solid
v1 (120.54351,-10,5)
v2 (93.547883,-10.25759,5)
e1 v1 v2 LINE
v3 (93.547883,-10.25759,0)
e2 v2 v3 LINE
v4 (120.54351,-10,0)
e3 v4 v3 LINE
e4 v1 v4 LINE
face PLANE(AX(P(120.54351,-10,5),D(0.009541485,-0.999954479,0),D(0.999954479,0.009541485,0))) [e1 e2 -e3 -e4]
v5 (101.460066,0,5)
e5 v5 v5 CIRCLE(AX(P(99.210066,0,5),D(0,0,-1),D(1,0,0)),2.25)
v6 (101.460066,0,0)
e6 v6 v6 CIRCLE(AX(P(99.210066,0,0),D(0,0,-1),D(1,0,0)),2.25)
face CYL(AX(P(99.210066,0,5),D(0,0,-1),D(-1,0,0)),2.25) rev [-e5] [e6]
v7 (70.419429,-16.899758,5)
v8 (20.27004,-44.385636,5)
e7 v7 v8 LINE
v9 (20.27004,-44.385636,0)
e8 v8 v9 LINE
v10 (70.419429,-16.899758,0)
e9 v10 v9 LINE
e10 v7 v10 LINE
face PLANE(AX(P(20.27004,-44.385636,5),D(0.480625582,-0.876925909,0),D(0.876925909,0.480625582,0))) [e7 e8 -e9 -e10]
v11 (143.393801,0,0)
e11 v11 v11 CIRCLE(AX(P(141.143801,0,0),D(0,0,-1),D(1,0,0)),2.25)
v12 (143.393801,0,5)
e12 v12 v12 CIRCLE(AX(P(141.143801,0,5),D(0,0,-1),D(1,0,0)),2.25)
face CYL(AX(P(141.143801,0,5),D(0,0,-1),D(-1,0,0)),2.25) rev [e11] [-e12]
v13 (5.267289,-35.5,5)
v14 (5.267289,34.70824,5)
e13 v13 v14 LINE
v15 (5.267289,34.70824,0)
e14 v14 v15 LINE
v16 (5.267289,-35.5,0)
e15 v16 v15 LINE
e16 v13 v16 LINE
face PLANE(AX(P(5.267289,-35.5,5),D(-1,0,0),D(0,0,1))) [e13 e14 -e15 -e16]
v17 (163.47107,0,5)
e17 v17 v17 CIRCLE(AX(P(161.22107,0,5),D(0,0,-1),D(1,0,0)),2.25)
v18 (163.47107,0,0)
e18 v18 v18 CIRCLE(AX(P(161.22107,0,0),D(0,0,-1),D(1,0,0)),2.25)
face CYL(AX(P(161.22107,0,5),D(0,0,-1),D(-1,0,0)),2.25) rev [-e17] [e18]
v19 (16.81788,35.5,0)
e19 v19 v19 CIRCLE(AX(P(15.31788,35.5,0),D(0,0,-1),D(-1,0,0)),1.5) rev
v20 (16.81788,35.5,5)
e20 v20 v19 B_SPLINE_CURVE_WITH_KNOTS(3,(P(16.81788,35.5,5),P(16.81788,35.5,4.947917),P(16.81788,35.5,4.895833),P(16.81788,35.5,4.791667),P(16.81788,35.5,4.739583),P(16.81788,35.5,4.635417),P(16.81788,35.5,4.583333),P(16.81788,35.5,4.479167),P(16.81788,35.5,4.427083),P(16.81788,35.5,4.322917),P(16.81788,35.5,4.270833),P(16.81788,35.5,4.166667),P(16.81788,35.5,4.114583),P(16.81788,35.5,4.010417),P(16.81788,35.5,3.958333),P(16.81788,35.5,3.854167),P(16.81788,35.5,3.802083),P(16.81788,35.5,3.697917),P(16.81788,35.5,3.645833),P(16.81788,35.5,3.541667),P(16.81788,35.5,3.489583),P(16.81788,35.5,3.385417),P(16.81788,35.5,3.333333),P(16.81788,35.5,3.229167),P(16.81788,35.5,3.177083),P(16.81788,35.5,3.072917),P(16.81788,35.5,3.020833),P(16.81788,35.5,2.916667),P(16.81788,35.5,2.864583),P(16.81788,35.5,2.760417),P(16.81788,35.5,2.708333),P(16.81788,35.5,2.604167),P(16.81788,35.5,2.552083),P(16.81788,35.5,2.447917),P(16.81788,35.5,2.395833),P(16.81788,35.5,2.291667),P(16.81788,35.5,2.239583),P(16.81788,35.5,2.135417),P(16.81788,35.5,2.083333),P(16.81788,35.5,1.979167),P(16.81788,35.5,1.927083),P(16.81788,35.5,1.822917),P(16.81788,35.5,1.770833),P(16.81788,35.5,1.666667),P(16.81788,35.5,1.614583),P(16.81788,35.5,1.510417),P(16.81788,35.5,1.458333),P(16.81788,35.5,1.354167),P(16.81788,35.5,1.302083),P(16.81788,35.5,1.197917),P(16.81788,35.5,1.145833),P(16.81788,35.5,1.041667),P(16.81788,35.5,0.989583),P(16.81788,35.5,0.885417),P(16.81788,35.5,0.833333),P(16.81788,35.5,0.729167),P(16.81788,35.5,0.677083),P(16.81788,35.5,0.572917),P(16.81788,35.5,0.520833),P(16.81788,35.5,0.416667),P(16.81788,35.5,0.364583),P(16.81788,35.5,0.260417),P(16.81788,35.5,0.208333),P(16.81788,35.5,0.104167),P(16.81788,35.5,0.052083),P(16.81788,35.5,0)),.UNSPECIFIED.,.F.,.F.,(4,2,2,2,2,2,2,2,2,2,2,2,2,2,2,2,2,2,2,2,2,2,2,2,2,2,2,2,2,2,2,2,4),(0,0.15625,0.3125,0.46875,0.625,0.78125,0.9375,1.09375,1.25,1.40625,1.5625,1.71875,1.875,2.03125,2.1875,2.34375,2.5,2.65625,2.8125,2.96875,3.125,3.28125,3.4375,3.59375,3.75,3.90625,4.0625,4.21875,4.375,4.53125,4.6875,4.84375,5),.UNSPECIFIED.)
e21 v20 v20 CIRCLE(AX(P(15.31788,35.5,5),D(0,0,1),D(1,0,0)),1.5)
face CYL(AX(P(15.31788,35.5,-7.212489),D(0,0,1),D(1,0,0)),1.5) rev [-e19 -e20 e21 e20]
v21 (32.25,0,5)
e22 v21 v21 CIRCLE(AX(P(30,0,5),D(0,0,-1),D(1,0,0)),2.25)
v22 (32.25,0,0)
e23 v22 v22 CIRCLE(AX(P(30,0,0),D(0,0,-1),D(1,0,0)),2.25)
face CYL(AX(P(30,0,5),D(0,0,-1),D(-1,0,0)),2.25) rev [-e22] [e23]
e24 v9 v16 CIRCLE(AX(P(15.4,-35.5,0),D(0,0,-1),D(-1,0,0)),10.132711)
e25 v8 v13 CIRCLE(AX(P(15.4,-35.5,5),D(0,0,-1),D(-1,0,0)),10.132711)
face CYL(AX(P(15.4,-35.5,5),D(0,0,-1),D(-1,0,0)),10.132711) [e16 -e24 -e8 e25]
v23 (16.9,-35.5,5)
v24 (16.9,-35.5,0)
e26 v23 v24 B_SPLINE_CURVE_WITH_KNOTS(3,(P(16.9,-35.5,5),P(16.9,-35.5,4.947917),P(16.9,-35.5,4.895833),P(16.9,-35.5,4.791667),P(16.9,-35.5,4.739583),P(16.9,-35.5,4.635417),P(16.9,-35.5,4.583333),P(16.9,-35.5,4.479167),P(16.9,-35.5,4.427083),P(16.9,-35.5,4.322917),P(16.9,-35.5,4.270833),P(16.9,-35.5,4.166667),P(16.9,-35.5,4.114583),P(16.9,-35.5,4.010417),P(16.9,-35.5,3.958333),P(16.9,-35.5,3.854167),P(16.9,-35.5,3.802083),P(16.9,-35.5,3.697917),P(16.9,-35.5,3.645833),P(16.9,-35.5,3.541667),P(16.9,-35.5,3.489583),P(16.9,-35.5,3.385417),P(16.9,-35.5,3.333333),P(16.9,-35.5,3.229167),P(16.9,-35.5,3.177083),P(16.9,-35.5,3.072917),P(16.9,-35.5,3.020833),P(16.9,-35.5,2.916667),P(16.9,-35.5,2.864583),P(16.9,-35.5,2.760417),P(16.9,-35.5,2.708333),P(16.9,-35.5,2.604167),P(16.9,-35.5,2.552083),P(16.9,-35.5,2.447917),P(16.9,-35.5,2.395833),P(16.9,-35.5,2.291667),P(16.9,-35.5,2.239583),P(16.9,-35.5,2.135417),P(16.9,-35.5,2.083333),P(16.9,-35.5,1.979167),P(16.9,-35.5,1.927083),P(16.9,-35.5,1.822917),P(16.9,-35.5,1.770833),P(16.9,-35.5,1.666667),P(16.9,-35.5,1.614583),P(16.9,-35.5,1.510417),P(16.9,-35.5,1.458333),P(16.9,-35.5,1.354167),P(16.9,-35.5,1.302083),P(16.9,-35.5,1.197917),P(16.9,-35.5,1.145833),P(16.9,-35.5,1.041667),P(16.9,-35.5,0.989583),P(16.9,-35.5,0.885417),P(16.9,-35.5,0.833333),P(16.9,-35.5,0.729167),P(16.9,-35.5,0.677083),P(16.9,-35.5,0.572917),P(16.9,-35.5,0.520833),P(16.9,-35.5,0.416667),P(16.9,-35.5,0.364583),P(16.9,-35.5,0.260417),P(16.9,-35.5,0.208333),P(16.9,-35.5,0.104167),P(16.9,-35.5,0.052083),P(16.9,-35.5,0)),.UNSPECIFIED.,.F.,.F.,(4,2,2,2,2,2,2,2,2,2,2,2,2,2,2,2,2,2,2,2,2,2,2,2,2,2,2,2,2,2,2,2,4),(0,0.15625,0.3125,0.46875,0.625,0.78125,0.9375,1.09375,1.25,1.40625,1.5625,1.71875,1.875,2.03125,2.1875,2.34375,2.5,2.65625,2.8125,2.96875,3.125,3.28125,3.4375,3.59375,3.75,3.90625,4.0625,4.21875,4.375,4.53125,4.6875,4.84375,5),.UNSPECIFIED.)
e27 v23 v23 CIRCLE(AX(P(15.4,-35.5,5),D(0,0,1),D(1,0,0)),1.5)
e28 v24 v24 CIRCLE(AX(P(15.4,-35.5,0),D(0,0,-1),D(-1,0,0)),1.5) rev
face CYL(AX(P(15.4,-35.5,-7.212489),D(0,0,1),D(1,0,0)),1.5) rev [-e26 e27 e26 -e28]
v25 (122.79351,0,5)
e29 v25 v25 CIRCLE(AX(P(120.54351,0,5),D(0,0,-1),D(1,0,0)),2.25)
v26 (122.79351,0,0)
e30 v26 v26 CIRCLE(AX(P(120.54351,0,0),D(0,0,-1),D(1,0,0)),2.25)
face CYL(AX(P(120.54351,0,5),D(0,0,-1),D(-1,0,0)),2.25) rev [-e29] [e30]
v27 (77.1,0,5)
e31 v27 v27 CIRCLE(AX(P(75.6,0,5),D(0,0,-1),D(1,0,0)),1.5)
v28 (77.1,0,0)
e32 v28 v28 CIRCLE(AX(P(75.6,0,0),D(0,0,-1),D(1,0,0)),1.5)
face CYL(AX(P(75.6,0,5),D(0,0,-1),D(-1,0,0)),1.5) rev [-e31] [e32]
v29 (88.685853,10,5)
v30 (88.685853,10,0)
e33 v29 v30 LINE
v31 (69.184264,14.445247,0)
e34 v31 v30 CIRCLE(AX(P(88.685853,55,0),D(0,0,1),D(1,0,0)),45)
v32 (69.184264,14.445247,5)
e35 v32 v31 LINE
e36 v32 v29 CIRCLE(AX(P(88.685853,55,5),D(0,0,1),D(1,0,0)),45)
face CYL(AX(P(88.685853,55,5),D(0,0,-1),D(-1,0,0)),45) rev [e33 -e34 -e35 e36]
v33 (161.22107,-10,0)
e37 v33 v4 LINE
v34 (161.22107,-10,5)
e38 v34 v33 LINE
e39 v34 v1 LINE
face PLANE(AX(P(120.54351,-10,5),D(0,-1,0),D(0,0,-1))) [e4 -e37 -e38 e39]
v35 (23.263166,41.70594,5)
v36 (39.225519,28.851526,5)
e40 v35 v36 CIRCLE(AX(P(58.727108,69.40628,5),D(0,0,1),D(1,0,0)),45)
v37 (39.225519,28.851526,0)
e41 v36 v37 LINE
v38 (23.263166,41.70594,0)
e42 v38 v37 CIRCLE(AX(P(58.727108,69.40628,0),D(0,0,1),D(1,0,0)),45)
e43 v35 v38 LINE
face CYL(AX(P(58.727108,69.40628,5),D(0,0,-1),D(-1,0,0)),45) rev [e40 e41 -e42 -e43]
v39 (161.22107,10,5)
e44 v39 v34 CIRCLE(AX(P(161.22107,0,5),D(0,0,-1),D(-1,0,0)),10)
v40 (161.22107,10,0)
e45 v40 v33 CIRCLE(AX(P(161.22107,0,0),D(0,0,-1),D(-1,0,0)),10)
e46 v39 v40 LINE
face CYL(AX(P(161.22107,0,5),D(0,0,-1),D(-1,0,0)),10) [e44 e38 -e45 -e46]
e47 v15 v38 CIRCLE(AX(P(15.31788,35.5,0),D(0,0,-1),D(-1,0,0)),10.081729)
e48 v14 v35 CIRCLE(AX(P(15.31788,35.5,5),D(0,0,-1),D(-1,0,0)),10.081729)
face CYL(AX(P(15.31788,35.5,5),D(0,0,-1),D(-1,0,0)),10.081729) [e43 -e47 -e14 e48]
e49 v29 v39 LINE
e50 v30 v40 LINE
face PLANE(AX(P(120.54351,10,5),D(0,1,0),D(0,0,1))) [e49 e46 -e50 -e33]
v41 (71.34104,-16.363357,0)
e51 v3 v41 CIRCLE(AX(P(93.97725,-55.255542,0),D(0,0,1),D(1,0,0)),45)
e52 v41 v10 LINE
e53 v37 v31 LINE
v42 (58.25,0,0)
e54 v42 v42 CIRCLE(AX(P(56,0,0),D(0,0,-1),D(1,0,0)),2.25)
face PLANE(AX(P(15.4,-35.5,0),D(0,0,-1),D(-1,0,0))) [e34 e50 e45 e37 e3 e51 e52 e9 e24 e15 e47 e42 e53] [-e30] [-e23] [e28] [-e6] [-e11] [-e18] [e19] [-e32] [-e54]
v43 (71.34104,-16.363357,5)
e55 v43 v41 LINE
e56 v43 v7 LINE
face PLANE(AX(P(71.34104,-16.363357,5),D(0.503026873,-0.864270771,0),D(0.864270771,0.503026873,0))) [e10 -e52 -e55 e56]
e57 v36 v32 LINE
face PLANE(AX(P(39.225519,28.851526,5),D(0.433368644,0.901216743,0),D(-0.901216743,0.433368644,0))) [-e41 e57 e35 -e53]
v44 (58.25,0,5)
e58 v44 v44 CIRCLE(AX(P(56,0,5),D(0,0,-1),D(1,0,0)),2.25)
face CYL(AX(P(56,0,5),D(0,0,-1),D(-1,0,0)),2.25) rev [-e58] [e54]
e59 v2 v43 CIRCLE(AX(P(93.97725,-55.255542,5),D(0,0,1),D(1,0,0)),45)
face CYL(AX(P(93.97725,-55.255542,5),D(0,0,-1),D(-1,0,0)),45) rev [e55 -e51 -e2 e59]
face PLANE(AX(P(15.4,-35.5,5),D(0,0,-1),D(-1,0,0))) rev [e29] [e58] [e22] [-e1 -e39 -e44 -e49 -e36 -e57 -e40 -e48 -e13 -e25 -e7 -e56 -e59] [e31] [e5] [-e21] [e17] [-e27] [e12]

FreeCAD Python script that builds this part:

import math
import FreeCAD as App
import Part
import Sketcher

V = App.Vector

doc = App.newDocument("Part")
body = doc.addObject("PartDesign::Body", "Body")

# Sketch on XY plane
sketch1 = doc.addObject("Sketcher::SketchObject", "Sketch")
body.addObject(sketch1)
sketch1.AttachmentSupport = (doc.XY_Plane, [""])
sketch1.MapMode = "FlatFace"
sketch1.addGeometry([
    Part.LineSegment(V(71.34104, -16.363357, 0), V(70.419429, -16.899758, 0)),  # 0
    Part.LineSegment(V(70.419429, -16.899758, 0), V(20.27004, -44.385636, 0)),  # 1
    Part.ArcOfCircle(Part.Circle(V(15.4, -35.5, 0), V(0, 0, 1), 10.132711), math.radians(180), math.radians(298.726268)),  # 2
    Part.LineSegment(V(5.267289, -35.5, 0), V(5.267289, 34.70824, 0)),  # 3
    Part.ArcOfCircle(Part.Circle(V(15.31788, 35.5, 0), V(0, 0, 1), 10.081729), math.radians(37.992848), math.radians(184.504316)),  # 4
    Part.ArcOfCircle(Part.Circle(V(58.727108, 69.40628, 0), V(0, 0, 1), 45), math.radians(-142.007152), math.radians(-115.681533)),  # 5
    Part.LineSegment(V(39.225519, 28.851526, 0), V(69.184264, 14.445247, 0)),  # 6
    Part.ArcOfCircle(Part.Circle(V(88.685853, 55, 0), V(0, 0, 1), 45), math.radians(-115.681533), math.radians(-90)),  # 7
    Part.LineSegment(V(88.685853, 10, 0), V(161.22107, 10, 0)),  # 8
    Part.ArcOfCircle(Part.Circle(V(161.22107, 0, 0), V(0, 0, 1), 10), math.radians(-90), math.radians(90)),  # 9
    Part.LineSegment(V(161.22107, -10, 0), V(120.54351, -10, 0)),  # 10
    Part.LineSegment(V(120.54351, -10, 0), V(93.547883, -10.25759, 0)),  # 11
    Part.ArcOfCircle(Part.Circle(V(93.97725, -55.255542, 0), V(0, 0, 1), 45), math.radians(90.546695), math.radians(120.200459)),  # 12
    Part.Circle(V(15.4, -35.5, 0), V(0, 0, 1), 2.55),  # 13
    Part.Circle(V(161.22107, 0, 0), V(0, 0, 1), 2.25),  # 14
    Part.Circle(V(141.143801, 0, 0), V(0, 0, 1), 2.25),  # 15
    Part.Circle(V(120.54351, 0, 0), V(0, 0, 1), 2.25),  # 16
    Part.Circle(V(99.210066, 0, 0), V(0, 0, 1), 2.25),  # 17
    Part.Circle(V(75.6, 0, 0), V(0, 0, 1), 1.5),  # 18
    Part.Circle(V(56, 0, 0), V(0, 0, 1), 2.25),  # 19
    Part.Circle(V(30, 0, 0), V(0, 0, 1), 2.25),  # 20
    Part.Circle(V(15.31788, 35.5, 0), V(0, 0, 1), 2.55),  # 21
], False)
sketch1.addConstraint([
    Sketcher.Constraint("Coincident", 0, 2, 1, 1),
    Sketcher.Constraint("Tangent", 1, 2, 2, 2),
    Sketcher.Constraint("Tangent", 2, 1, 3, 1),
    Sketcher.Constraint("Coincident", 3, 2, 4, 2),
    Sketcher.Constraint("Tangent", 4, 1, 5, 1),
    Sketcher.Constraint("Tangent", 5, 2, 6, 1),
    Sketcher.Constraint("Tangent", 6, 2, 7, 1),
    Sketcher.Constraint("Tangent", 7, 2, 8, 1),
    Sketcher.Constraint("Tangent", 8, 2, 9, 2),
    Sketcher.Constraint("Tangent", 9, 1, 10, 1),
    Sketcher.Constraint("Coincident", 10, 2, 11, 1),
    Sketcher.Constraint("Tangent", 11, 2, 12, 1),
    Sketcher.Constraint("Tangent", 12, 2, 0, 1),
    Sketcher.Constraint("Vertical", 3),
    Sketcher.Constraint("Horizontal", 8),
    Sketcher.Constraint("Horizontal", 10),
    Sketcher.Constraint("Coincident", 13, 3, 2, 3),
    Sketcher.Constraint("Coincident", 14, 3, 9, 3),
    Sketcher.Constraint("Coincident", 21, 3, 4, 3),
    Sketcher.Constraint("Equal", 5, 7),
    Sketcher.Constraint("Equal", 7, 12),
    Sketcher.Constraint("Equal", 14, 15),
    Sketcher.Constraint("Equal", 15, 16),
    Sketcher.Constraint("Equal", 16, 17),
    Sketcher.Constraint("Equal", 17, 19),
    Sketcher.Constraint("Equal", 19, 20),
    Sketcher.Constraint("Equal", 13, 21),
    Sketcher.Constraint("PointOnObject", 9, 3, -1),
    Sketcher.Constraint("PointOnObject", 15, 3, -1),
    Sketcher.Constraint("PointOnObject", 16, 3, -1),
    Sketcher.Constraint("PointOnObject", 17, 3, -1),
    Sketcher.Constraint("PointOnObject", 18, 3, -1),
    Sketcher.Constraint("PointOnObject", 19, 3, -1),
    Sketcher.Constraint("PointOnObject", 20, 3, -1),
    Sketcher.Constraint("Vertical", 16, 3, 10, 2),
    Sketcher.Constraint("Diameter", 18, 3.0),
    Sketcher.Constraint("Radius", 5, 45.0),
    Sketcher.Constraint("Radius", 9, 10.0),
    Sketcher.Constraint("Diameter", 13, 5.1),
    Sketcher.Constraint("Diameter", 14, 4.5),
    Sketcher.Constraint("DistanceX", -1, 1, 19, 3, 56.0),
    Sketcher.Constraint("DistanceX", -1, 1, 20, 3, 30.0),
    Sketcher.Constraint("DistanceY", 2, 3, 4, 3, 71.0),
    Sketcher.Constraint("DistanceX", -1, 1, 2, 3, 15.4),
    Sketcher.Constraint("DistanceY", 2, 3, -1, 1, 35.5),
    Sketcher.Constraint("DistanceX", -1, 1, 18, 3, 75.6),
    Sketcher.Constraint("Radius", 2, 10.132711),
    Sketcher.Constraint("Radius", 4, 10.081729),
    Sketcher.Constraint("DistanceX", 10, 2, 10, 1, 40.67756),
    Sketcher.Constraint("DistanceY", 3, 1, 3, 2, 70.20824),
    Sketcher.Constraint("DistanceX", -1, 1, 15, 3, 141.143801),
    Sketcher.Constraint("DistanceY", 3, 2, 4, 1, 6.997701),
    Sketcher.Constraint("DistanceY", 0, 2, 12, 2, 0.536401),
    Sketcher.Constraint("DistanceX", 8, 1, 8, 2, 72.535217),
    Sketcher.Constraint("DistanceX", -1, 1, 9, 3, 161.22107),
    Sketcher.Constraint("DistanceX", -1, 1, 12, 3, 93.97725),
    Sketcher.Constraint("DistanceY", 12, 3, -1, 1, 55.255542),
    Sketcher.Constraint("DistanceX", -1, 1, 0, 2, 70.419429),
    Sketcher.Constraint("DistanceX", -1, 1, 17, 3, 99.210066),
])
pad1 = doc.addObject("PartDesign::Pad", "Pad")
body.addObject(pad1)
pad1.Profile = sketch1
pad1.Length = 5

# Sketch on XY plane
sketch2 = doc.addObject("Sketcher::SketchObject", "Sketch001")
body.addObject(sketch2)
sketch2.AttachmentSupport = (doc.XY_Plane, [""])
sketch2.MapMode = "FlatFace"
sketch2.addGeometry([
    Part.Circle(V(15.4, -35.5, 0), V(0, 0, 1), 2.55),
    Part.Circle(V(15.4, -35.5, 0), V(0, 0, 1), 1.5),
    Part.Circle(V(15.31788, 35.5, 0), V(0, 0, 1), 2.55),
    Part.Circle(V(15.31788, 35.5, 0), V(0, 0, 1), 1.5),
], False)
sketch2.addConstraint([
    Sketcher.Constraint("Coincident", 1, 3, 0, 3),
    Sketcher.Constraint("Coincident", 3, 3, 2, 3),
    Sketcher.Constraint("Equal", 0, 2),
    Sketcher.Constraint("Equal", 1, 3),
    Sketcher.Constraint("Diameter", 1, 3.0),
    Sketcher.Constraint("Diameter", 0, 5.1),
    Sketcher.Constraint("DistanceY", 0, 3, 2, 3, 71.0),
    Sketcher.Constraint("DistanceX", -1, 1, 0, 3, 15.4),
    Sketcher.Constraint("DistanceY", 0, 3, -1, 1, 35.5),
    Sketcher.Constraint("DistanceX", -1, 1, 2, 3, 15.31788),
])
pad2 = doc.addObject("PartDesign::Pad", "Pad001")
body.addObject(pad2)
pad2.Profile = sketch2
pad2.Length = 5

doc.recompute()
